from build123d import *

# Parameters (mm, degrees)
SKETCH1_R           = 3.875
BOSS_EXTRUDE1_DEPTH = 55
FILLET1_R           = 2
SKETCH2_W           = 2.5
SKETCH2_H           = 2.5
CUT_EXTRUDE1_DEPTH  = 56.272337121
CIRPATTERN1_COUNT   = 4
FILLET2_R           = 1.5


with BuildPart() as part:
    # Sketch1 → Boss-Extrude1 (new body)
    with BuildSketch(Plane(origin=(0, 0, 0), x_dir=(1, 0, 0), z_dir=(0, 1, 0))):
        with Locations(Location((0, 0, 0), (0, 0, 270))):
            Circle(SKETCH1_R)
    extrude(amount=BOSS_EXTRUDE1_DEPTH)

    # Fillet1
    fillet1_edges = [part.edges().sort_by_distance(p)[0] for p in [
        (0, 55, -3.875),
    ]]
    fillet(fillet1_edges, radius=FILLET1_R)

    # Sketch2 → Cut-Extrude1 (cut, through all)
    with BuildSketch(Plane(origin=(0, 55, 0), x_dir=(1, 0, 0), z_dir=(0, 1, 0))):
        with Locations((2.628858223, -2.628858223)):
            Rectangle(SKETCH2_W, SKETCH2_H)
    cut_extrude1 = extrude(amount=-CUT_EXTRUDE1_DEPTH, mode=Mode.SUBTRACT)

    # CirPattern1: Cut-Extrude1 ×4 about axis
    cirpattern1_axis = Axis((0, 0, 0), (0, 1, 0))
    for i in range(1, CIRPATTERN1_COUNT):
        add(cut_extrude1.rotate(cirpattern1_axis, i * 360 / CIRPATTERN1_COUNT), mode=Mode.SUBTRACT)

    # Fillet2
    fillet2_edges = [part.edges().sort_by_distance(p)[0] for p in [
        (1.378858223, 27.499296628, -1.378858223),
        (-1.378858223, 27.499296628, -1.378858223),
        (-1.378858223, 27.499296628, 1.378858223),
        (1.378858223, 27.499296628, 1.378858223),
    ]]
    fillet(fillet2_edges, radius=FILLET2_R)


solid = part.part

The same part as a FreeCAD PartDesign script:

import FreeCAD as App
import Part
import Sketcher

V = App.Vector
Q = App.Units.Quantity


def edges_at(feature, points):
    """Names of the edges that pass closest to the given points."""
    edges = feature.Shape.Edges
    near = lambda p: min(range(len(edges)), key=lambda i: edges[i].distToShape(Part.Vertex(*p))[0])
    return sorted({f"Edge{near(p) + 1}" for p in points})

doc = App.newDocument("Part")
body = doc.addObject("PartDesign::Body", "Body")

# Sketch on XZ plane
sketch1 = body.newObject("Sketcher::SketchObject", "Sketch")
sketch1.AttachmentSupport = (doc.getObject("XZ_Plane"), [""])
sketch1.MapMode = "FlatFace"
sketch1.addGeometry(Part.Circle(V(0, 0, 0), V(0, 0, 1), 3.875), False)
sketch1.addConstraint([
    Sketcher.Constraint("Coincident", 0, 3, -1, 1),
    Sketcher.Constraint("Diameter", 0, Q("7.75 mm")),
])
pad1 = body.newObject("PartDesign::Pad", "Pad")
pad1.Profile = sketch1
pad1.Length = 55
pad1.Reversed = True
doc.recompute()

fillet = body.newObject("PartDesign::Fillet", "Fillet")
fillet.Base = (pad1, edges_at(pad1, [(0, 55, -3.875)]))
fillet.Radius = 2

# Sketch on XZ plane
sketch2 = body.newObject("Sketcher::SketchObject", "Sketch001")
sketch2.AttachmentSupport = (doc.getObject("XZ_Plane"), [""])
sketch2.MapMode = "FlatFace"
sketch2.AttachmentOffset = App.Placement(V(0, 0, -55), App.Rotation())
sketch2.addGeometry([
    Part.LineSegment(V(1.378858, 1.378858, 0), V(1.378858, 3.878858, 0)),
    Part.LineSegment(V(1.378858, 3.878858, 0), V(3.878858, 3.878858, 0)),
    Part.LineSegment(V(3.878858, 3.878858, 0), V(3.878858, 1.378858, 0)),
    Part.LineSegment(V(3.878858, 1.378858, 0), V(1.378858, 1.378858, 0)),
], False)
sketch2.addConstraint([
    Sketcher.Constraint("Coincident", 0, 2, 1, 1),
    Sketcher.Constraint("Coincident", 1, 2, 2, 1),
    Sketcher.Constraint("Coincident", 2, 2, 3, 1),
    Sketcher.Constraint("Coincident", 3, 2, 0, 1),
    Sketcher.Constraint("Vertical", 0),
    Sketcher.Constraint("Horizontal", 1),
    Sketcher.Constraint("Vertical", 2),
    Sketcher.Constraint("Horizontal", 3),
    Sketcher.Constraint("Equal", 3, 0),
    Sketcher.Constraint("DistanceX", 1, 1, 1, 2, Q("2.5 mm")),
    Sketcher.Constraint("DistanceX", -1, 1, 0, 2, Q("1.378858 mm")),
    Sketcher.Constraint("DistanceY", -1, 1, 0, 2, Q("3.878858 mm")),
])
pocket1 = body.newObject("PartDesign::Pocket", "Pocket")
pocket1.Profile = sketch2
pocket1.Type = "ThroughAll"
pocket1.Reversed = True
doc.recompute()

polarpattern = body.newObject("PartDesign::PolarPattern", "PolarPattern")
polarpattern.Originals = [pocket1]
polarpattern.Axis = (doc.getObject("Y_Axis"), [""])
polarpattern.Angle = 360
polarpattern.Occurrences = 4
body.Tip = polarpattern
doc.recompute()

fillet2 = body.newObject("PartDesign::Fillet", "Fillet001")
fillet2.Base = (polarpattern, edges_at(polarpattern, [
    (1.379, 27.499, -1.379),
    (-1.379, 27.499, -1.379),
    (-1.379, 27.499, 1.379),
    (1.379, 27.499, 1.379),
]))
fillet2.Radius = 1.5

doc.recompute()
